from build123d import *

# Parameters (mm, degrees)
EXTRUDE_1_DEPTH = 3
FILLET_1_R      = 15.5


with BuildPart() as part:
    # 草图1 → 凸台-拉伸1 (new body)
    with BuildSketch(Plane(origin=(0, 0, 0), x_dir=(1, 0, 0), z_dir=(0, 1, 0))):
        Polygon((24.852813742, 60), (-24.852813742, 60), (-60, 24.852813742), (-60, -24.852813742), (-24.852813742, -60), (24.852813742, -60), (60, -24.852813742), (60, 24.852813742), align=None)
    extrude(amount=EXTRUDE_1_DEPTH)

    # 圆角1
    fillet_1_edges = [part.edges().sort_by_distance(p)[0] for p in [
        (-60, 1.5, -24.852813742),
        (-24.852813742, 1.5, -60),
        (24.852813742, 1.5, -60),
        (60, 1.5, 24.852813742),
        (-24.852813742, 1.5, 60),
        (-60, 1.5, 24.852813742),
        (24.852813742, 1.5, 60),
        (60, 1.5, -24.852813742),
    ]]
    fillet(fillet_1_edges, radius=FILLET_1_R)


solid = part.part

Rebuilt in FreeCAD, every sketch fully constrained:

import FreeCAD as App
import Part
import Sketcher
from FreeCAD import Vector
Q = App.Units.Quantity


def edges_at(feature, points):
    """Names of the edges that pass closest to the given points."""
    edges = feature.Shape.Edges
    near = lambda p: min(range(len(edges)), key=lambda i: edges[i].distToShape(Part.Vertex(*p))[0])
    return sorted({f"Edge{near(p) + 1}" for p in points})

doc = App.newDocument("Part")
body = doc.addObject("PartDesign::Body", "Body")

# Sketch on XZ plane
sketch1 = body.newObject("Sketcher::SketchObject", "Sketch")
sketch1.AttachmentSupport = (doc.getObject("XZ_Plane"), [""])
sketch1.MapMode = "FlatFace"
sketch1.addGeometry([
    Part.LineSegment(Vector(25, -60, 0), Vector(-25, -60, 0)),  # 0
    Part.LineSegment(Vector(-25, -60, 0), Vector(-60, -25, 0)),  # 1
    Part.LineSegment(Vector(-60, -25, 0), Vector(-60, 25, 0)),  # 2
    Part.LineSegment(Vector(-60, 25, 0), Vector(-25, 60, 0)),  # 3
    Part.LineSegment(Vector(-25, 60, 0), Vector(25, 60, 0)),  # 4
    Part.LineSegment(Vector(25, 60, 0), Vector(60, 25, 0)),  # 5
    Part.LineSegment(Vector(60, 25, 0), Vector(60, -25, 0)),  # 6
    Part.LineSegment(Vector(60, -25, 0), Vector(25, -60, 0)),  # 7
], False)
sketch1.addConstraint([
    Sketcher.Constraint("Coincident", 0, 2, 1, 1),
    Sketcher.Constraint("Coincident", 1, 2, 2, 1),
    Sketcher.Constraint("Coincident", 2, 2, 3, 1),
    Sketcher.Constraint("Coincident", 3, 2, 4, 1),
    Sketcher.Constraint("Coincident", 4, 2, 5, 1),
    Sketcher.Constraint("Coincident", 5, 2, 6, 1),
    Sketcher.Constraint("Coincident", 6, 2, 7, 1),
    Sketcher.Constraint("Coincident", 7, 2, 0, 1),
    Sketcher.Constraint("Horizontal", 0),
    Sketcher.Constraint("Vertical", 2),
    Sketcher.Constraint("Horizontal", 4),
    Sketcher.Constraint("Vertical", 6),
    Sketcher.Constraint("Symmetric", 0, 2, 4, 2, -1, 1),
    Sketcher.Constraint("Symmetric", 1, 2, 5, 2, -1, 1),
    Sketcher.Constraint("Perpendicular", 1, 3),
    Sketcher.Constraint("Perpendicular", 5, 7),
    Sketcher.Constraint("Horizontal", 2, 2, 5, 2),
    Sketcher.Constraint("Horizontal", 1, 2, 6, 2),
    Sketcher.Constraint("Vertical", 0, 2, 3, 2),
    Sketcher.Constraint("Equal", 4, 2),
    Sketcher.Constraint("DistanceY", 0, 2, -1, 1, Q("60 mm")),
    Sketcher.Constraint("DistanceX", 0, 2, 0, 1, Q("49.705627 mm")),
])
pad1 = body.newObject("PartDesign::Pad", "Pad")
pad1.Profile = sketch1
pad1.Length = 3
pad1.Reversed = True
doc.recompute()

fillet = body.newObject("PartDesign::Fillet", "Fillet")
fillet.Base = (pad1, edges_at(pad1, [
    (-60, 1.5, -24.853),
    (-24.853, 1.5, -60),
    (24.853, 1.5, -60),
    (60, 1.5, 24.853),
    (-24.853, 1.5, 60),
    (-60, 1.5, 24.853),
    (24.853, 1.5, 60),
    (60, 1.5, -24.853),
]))
fillet.Radius = 15.5

doc.recompute()
